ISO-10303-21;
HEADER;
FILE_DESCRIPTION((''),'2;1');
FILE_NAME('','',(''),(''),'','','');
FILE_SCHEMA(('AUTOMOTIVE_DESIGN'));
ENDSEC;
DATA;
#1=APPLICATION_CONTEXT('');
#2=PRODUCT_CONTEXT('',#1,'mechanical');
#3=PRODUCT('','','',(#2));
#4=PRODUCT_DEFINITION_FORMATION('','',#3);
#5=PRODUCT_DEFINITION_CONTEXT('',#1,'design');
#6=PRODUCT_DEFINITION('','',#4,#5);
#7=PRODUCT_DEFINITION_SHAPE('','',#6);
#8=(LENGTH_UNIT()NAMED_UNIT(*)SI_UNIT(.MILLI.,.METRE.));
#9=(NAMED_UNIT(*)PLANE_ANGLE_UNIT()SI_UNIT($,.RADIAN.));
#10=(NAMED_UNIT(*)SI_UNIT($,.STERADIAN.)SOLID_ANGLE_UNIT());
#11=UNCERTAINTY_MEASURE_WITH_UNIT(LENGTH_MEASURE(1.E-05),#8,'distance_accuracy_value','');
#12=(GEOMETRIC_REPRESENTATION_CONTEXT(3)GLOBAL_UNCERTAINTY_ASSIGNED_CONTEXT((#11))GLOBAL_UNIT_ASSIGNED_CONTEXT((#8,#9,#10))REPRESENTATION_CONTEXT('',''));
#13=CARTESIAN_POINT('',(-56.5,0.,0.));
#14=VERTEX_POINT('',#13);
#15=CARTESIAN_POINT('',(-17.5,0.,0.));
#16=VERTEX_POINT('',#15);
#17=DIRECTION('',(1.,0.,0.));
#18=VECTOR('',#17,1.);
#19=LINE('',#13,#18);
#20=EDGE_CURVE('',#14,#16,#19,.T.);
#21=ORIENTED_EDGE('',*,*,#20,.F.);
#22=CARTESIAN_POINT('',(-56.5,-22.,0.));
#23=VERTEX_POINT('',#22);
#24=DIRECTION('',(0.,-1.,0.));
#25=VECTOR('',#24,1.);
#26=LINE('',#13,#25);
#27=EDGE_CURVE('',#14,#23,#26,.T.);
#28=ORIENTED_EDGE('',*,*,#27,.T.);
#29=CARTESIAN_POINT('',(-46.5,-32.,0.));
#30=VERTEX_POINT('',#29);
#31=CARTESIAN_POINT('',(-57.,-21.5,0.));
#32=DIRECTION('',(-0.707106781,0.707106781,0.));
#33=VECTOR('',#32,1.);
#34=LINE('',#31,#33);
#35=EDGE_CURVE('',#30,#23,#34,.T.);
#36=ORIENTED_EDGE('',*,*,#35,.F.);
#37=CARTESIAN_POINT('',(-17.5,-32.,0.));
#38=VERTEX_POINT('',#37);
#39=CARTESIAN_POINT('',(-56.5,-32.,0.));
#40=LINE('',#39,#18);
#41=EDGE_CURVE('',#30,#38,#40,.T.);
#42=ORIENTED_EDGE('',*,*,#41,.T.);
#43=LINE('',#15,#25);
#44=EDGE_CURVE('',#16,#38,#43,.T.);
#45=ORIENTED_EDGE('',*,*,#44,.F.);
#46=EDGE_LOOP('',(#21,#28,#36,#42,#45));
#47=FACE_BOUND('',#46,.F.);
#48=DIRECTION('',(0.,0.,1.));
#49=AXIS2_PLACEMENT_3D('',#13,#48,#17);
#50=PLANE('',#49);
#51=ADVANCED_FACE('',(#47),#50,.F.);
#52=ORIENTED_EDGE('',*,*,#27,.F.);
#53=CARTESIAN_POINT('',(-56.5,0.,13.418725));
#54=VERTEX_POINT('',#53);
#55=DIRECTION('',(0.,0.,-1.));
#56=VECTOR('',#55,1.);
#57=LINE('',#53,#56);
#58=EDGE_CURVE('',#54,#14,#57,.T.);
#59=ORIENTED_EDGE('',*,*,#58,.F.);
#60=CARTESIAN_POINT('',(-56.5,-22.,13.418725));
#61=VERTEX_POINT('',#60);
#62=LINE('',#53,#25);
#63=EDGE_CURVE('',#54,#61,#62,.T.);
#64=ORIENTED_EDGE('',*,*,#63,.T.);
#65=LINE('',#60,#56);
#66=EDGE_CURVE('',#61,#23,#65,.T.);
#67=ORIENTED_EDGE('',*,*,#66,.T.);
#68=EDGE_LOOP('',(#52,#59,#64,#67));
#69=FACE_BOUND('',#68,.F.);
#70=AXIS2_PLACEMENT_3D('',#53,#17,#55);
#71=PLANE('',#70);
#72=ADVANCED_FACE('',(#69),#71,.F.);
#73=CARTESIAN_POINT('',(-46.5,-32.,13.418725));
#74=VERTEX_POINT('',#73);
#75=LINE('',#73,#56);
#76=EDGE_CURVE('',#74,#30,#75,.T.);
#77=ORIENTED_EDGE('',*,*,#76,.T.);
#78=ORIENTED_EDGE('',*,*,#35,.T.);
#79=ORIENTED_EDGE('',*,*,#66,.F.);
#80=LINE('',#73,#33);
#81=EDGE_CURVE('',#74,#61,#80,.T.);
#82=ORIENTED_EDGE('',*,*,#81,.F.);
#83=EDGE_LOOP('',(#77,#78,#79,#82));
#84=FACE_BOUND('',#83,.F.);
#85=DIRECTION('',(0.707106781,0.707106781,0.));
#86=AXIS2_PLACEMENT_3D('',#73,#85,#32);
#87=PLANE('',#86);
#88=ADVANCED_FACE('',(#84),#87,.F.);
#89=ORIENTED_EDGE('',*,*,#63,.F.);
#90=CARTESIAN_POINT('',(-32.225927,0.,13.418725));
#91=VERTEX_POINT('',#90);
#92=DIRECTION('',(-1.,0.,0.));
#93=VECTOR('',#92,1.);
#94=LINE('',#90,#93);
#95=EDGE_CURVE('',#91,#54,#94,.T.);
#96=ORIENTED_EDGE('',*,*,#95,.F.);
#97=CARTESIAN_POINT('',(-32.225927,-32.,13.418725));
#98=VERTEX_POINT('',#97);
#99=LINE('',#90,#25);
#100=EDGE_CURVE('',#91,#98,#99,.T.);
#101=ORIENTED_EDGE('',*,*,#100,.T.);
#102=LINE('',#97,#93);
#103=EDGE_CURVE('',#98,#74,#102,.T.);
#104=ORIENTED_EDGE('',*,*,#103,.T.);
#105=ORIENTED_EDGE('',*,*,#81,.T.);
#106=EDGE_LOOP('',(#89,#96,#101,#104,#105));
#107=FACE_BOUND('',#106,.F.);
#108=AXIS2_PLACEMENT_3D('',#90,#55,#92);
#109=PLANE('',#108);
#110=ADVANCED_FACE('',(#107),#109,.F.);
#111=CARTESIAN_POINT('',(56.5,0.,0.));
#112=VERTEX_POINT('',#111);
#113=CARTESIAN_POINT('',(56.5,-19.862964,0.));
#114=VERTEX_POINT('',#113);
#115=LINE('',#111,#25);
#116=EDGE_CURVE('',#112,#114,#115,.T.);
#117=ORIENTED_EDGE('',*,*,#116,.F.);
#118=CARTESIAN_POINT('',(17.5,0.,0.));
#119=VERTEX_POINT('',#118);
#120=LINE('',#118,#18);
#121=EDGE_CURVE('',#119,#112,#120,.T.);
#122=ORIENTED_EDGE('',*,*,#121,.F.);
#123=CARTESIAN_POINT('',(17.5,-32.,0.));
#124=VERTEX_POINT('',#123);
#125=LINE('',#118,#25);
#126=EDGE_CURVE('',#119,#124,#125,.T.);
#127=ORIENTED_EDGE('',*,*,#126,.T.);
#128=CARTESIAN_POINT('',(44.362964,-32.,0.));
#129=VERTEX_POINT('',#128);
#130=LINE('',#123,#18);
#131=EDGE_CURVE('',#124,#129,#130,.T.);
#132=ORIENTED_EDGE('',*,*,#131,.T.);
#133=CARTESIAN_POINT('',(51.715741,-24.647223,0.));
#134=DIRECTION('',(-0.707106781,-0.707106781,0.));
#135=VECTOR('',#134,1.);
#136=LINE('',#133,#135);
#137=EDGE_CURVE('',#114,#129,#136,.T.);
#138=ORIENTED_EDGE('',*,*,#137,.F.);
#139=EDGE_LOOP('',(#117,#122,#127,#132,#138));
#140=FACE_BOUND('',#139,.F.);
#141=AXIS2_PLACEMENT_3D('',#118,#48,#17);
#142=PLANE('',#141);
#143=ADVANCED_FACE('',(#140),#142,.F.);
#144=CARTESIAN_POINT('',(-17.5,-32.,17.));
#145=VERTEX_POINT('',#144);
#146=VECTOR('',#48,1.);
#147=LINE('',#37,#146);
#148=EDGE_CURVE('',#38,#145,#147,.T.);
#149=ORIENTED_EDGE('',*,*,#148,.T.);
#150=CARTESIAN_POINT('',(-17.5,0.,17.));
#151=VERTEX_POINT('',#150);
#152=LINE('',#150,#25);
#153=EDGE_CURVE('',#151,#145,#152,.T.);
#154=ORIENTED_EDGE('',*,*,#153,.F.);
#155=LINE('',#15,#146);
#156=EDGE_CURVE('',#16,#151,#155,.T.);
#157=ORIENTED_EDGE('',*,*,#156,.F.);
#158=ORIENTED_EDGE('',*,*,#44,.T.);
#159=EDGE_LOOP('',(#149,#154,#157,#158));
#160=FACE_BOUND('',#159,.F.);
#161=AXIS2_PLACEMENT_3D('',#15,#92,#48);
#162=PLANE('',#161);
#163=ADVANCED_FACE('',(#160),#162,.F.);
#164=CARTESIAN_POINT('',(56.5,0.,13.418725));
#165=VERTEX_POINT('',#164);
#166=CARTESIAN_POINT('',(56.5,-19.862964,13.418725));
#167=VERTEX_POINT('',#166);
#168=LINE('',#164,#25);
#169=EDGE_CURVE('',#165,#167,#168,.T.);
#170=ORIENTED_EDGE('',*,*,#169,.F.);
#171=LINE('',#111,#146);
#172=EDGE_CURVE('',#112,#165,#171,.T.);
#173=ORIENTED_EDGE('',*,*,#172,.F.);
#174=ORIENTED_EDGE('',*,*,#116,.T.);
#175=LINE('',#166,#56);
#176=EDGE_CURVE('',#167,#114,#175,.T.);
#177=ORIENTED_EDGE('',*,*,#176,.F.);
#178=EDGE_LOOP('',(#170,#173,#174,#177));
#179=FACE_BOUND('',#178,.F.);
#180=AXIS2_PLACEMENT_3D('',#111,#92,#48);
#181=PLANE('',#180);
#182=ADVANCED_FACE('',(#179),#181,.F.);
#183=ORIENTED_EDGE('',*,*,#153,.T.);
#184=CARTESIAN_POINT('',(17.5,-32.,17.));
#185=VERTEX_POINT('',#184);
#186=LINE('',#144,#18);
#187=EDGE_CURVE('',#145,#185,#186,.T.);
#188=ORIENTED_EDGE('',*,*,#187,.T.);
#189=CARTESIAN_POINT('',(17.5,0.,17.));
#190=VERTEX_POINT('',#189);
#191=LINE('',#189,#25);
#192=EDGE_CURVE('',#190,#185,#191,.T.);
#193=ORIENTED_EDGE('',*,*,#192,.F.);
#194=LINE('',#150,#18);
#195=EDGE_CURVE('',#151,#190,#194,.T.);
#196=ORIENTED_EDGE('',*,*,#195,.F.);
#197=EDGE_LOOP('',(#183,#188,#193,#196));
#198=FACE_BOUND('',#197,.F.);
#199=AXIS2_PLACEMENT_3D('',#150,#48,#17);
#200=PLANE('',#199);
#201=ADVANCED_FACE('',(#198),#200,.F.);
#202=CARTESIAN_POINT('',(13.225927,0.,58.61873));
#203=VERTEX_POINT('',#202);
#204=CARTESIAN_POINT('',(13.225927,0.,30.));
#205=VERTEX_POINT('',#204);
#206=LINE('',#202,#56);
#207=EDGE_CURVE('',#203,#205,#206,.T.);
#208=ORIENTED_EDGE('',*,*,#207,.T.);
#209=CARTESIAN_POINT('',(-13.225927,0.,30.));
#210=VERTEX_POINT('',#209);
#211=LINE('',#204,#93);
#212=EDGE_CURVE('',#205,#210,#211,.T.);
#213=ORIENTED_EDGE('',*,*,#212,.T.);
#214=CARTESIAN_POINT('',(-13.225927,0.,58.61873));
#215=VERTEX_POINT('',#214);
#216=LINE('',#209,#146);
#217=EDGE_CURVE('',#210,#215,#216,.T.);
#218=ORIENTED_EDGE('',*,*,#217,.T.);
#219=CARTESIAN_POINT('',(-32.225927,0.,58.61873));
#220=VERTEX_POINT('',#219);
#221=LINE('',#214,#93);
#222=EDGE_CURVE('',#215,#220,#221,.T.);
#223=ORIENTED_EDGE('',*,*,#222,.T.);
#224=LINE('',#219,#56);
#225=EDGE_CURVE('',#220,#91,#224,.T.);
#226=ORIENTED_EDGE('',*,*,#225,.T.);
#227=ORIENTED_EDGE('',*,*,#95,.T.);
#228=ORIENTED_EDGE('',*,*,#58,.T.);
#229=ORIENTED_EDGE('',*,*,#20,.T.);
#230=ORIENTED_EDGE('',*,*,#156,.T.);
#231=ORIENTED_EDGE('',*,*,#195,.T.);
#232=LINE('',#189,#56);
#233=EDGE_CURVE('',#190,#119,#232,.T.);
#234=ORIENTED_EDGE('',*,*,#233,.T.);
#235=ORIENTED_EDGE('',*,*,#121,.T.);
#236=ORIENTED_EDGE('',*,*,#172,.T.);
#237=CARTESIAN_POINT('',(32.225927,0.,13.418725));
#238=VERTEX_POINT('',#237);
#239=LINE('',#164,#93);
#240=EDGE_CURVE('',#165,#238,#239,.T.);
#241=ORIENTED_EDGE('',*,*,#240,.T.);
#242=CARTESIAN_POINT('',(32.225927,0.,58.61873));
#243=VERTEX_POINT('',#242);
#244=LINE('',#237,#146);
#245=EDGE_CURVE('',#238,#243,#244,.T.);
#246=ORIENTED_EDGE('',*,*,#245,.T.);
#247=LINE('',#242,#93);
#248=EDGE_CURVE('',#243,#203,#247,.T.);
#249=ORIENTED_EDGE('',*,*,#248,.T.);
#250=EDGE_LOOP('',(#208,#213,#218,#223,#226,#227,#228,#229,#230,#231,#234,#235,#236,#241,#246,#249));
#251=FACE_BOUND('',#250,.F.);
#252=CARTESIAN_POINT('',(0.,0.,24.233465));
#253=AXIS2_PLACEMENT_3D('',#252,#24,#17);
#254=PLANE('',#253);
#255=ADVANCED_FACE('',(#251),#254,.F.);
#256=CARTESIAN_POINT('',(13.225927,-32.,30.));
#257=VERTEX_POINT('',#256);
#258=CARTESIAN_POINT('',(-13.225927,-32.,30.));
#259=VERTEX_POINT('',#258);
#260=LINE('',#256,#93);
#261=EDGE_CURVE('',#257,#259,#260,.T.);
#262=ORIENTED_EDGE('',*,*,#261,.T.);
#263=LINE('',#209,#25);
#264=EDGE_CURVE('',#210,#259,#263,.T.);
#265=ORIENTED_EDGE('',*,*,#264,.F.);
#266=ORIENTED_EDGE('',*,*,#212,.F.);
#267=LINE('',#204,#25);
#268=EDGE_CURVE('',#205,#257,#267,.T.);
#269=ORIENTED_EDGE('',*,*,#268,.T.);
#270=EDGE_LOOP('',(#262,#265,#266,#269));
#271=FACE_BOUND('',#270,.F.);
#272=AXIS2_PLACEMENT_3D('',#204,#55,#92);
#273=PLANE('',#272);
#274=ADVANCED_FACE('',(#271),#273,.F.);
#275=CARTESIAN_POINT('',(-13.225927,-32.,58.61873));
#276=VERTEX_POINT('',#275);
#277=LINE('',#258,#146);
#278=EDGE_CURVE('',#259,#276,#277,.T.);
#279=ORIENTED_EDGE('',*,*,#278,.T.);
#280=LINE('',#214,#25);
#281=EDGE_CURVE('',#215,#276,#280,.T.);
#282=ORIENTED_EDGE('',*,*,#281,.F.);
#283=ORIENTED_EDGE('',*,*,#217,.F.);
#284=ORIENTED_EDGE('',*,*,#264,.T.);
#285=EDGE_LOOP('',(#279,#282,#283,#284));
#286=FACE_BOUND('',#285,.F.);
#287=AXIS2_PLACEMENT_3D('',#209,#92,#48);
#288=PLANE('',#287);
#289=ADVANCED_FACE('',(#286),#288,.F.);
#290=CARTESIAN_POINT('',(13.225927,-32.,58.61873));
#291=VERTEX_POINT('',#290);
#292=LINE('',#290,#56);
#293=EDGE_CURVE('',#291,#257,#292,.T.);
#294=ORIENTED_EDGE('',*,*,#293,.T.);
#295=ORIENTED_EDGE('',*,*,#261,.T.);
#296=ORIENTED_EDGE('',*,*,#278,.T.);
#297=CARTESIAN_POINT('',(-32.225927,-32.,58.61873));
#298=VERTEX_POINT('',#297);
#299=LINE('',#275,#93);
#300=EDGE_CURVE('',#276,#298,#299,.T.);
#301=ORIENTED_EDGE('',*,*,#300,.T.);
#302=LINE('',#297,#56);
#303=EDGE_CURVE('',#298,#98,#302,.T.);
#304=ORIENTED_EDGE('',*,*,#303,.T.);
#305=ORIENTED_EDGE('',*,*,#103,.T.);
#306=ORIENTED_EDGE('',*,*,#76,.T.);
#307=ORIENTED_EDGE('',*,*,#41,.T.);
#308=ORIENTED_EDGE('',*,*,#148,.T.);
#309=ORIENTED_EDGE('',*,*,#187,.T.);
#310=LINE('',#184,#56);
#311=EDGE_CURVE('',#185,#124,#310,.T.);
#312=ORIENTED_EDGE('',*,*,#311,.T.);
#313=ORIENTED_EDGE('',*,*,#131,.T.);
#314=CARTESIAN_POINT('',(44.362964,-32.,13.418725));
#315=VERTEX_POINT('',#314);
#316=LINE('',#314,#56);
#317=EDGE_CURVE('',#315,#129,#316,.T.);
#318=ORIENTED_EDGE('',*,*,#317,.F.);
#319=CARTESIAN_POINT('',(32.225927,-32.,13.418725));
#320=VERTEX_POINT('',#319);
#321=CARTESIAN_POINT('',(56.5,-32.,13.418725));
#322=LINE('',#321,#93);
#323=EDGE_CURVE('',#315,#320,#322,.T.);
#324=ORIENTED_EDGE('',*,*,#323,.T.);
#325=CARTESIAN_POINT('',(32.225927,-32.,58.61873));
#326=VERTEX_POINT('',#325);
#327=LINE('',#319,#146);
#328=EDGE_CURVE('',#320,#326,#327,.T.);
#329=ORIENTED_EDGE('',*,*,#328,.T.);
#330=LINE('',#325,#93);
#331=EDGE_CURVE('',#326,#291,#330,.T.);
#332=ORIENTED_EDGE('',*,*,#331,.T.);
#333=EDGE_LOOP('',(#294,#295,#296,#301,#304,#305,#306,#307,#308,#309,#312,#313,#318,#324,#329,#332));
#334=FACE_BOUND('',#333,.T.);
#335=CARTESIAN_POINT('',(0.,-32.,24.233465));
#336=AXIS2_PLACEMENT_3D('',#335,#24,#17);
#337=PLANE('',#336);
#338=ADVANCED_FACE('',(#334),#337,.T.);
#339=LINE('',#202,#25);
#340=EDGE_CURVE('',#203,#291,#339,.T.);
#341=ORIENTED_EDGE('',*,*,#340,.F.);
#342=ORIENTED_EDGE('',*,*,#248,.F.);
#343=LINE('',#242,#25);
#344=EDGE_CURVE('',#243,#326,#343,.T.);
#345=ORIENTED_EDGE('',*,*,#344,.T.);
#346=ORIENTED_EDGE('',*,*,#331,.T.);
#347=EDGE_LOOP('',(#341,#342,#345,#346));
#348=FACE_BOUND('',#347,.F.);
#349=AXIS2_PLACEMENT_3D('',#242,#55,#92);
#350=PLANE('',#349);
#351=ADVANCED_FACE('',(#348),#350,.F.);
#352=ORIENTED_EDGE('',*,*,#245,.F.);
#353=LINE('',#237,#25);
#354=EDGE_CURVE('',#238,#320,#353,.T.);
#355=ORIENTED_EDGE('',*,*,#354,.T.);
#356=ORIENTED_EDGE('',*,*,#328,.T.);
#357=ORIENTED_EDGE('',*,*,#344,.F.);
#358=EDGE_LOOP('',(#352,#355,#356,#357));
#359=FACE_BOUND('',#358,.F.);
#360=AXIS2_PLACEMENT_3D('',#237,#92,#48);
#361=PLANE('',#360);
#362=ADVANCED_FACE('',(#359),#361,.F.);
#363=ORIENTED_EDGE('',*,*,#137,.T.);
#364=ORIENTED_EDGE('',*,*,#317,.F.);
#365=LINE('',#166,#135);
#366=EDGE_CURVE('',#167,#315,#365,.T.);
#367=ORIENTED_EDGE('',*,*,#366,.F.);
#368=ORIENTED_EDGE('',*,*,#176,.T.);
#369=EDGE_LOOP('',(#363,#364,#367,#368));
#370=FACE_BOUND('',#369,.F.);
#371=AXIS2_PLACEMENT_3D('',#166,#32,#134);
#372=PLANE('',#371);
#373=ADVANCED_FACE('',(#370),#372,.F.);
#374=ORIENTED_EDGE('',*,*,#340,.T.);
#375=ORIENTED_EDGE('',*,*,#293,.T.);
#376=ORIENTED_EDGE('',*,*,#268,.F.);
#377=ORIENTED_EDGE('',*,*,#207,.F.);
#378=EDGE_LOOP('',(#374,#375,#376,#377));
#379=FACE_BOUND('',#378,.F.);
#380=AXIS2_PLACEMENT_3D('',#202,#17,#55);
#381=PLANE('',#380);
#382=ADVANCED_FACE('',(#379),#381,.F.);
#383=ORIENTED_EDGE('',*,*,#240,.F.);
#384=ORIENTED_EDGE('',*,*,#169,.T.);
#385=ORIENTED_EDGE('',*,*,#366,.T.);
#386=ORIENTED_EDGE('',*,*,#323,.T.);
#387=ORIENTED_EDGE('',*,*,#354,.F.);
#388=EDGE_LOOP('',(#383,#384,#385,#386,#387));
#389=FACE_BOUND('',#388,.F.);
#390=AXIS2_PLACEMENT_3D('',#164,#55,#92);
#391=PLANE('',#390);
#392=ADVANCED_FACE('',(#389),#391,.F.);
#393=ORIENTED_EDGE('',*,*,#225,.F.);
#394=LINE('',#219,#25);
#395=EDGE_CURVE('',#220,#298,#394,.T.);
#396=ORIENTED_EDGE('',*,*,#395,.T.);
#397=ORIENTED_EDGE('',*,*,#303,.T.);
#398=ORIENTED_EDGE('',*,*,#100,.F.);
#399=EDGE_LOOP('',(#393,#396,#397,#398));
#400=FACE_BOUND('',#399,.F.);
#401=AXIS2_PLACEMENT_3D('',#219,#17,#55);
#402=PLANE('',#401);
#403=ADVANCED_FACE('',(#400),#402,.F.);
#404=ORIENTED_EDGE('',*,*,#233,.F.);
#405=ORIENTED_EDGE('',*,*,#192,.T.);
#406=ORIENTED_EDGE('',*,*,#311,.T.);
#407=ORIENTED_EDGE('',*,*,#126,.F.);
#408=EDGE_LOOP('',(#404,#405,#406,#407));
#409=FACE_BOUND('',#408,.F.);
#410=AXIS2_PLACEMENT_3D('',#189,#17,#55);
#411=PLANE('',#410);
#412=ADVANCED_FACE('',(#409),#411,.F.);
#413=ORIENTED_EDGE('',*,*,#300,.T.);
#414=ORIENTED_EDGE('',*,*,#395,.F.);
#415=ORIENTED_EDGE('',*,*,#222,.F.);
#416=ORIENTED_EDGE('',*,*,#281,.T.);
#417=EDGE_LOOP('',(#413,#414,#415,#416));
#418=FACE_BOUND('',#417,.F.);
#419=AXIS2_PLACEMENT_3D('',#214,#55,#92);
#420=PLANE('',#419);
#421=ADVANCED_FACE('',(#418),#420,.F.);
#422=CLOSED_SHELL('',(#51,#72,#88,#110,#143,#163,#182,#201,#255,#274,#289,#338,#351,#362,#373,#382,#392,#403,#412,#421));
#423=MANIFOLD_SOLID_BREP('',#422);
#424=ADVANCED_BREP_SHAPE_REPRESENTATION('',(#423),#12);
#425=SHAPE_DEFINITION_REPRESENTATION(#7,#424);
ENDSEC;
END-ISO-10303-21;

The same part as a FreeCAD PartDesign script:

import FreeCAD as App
import Part
import Sketcher
from FreeCAD import Vector
Q = App.Units.Quantity


def add_polygon(sketch, points):
    """Adds a closed chain of lines whose ends are joined by coincident constraints."""
    first, n = sketch.GeometryCount, len(points)
    for a, b in zip(points, points[1:] + points[:1]):
        sketch.addGeometry(Part.LineSegment(App.Vector(*a, 0), App.Vector(*b, 0)), False)
    for i in range(n):
        sketch.addConstraint(Sketcher.Constraint("Coincident", first + i, 2, first + (i + 1) % n, 1))

doc = App.newDocument("Part")
body = doc.addObject("PartDesign::Body", "Body")

sketch1 = body.newObject("Sketcher::SketchObject", "Sketch")
sketch1.AttachmentSupport = (doc.getObject("XZ_Plane"), [""])
sketch1.MapMode = "FlatFace"
add_polygon(sketch1, [(-56, 13), (-56, 0), (-18, 0), (-18, 17), (18, 17), (18, 0), (56, 0), (56, 13), (32, 13), (32, 59), (13, 59), (13, 30), (-13, 30), (-13, 59), (-32, 59), (-32, 13)])
sketch1.addConstraint([
    Sketcher.Constraint("Vertical", 0),
    Sketcher.Constraint("Horizontal", 1),
    Sketcher.Constraint("Vertical", 2),
    Sketcher.Constraint("Horizontal", 3),
    Sketcher.Constraint("Vertical", 4),
    Sketcher.Constraint("Horizontal", 5),
    Sketcher.Constraint("Vertical", 6),
    Sketcher.Constraint("Horizontal", 7),
    Sketcher.Constraint("Vertical", 8),
    Sketcher.Constraint("Horizontal", 9),
    Sketcher.Constraint("Vertical", 10),
    Sketcher.Constraint("Horizontal", 11),
    Sketcher.Constraint("Vertical", 12),
    Sketcher.Constraint("Horizontal", 13),
    Sketcher.Constraint("Vertical", 14),
    Sketcher.Constraint("Horizontal", 15),
    Sketcher.Constraint("Symmetric", 1, 2, 4, 2, -1, 1),
    Sketcher.Constraint("Symmetric", 0, 2, 5, 2, -2),
    Sketcher.Constraint("Symmetric", 9, 2, 12, 2, -2),
    Sketcher.Constraint("Symmetric", 7, 2, 14, 2, -2),
    Sketcher.Constraint("DistanceX", 1, 1, 1, 2, Q("39 mm")),
    Sketcher.Constraint("DistanceX", 3, 1, 3, 2, Q("35 mm")),
    Sketcher.Constraint("DistanceX", 9, 2, 9, 1, Q("19 mm")),
    Sketcher.Constraint("DistanceY", 2, 1, 2, 2, Q("17 mm")),
    Sketcher.Constraint("DistanceY", -1, 1, 10, 2, Q("30 mm")),
    Sketcher.Constraint("DistanceY", 10, 2, 10, 1, Q("28.61873 mm")),
    Sketcher.Constraint("DistanceX", 7, 2, 7, 1, Q("24.274073 mm")),
    Sketcher.Constraint("DistanceY", 0, 2, 0, 1, Q("13.418725 mm")),
])
pad1 = body.newObject("PartDesign::Pad", "Pad")
pad1.Profile = sketch1
pad1.Length = 32

sketch2 = body.newObject("Sketcher::SketchObject", "Sketch001")
sketch2.AttachmentSupport = (doc.getObject("XY_Plane"), [""])
sketch2.MapMode = "FlatFace"
sketch2.AttachmentOffset = App.Placement(Vector(0, 0, 13.418725), App.Rotation())
add_polygon(sketch2, [(-56, -32), (-46, -32), (-56, -22)])
sketch2.addConstraint([
    Sketcher.Constraint("Horizontal", 0),
    Sketcher.Constraint("Vertical", 2),
    Sketcher.Constraint("Equal", 0, 2),
    Sketcher.Constraint("DistanceX", 0, 1, 0, 2, Q("10 mm")),
    Sketcher.Constraint("DistanceY", 0, 2, -1, 1, Q("32 mm")),
    Sketcher.Constraint("DistanceX", 0, 2, -1, 1, Q("46.5 mm")),
])
pocket1 = body.newObject("PartDesign::Pocket", "Pocket")
pocket1.Profile = sketch2
pocket1.Type = "ThroughAll"

sketch3 = body.newObject("Sketcher::SketchObject", "Sketch002")
sketch3.AttachmentSupport = (doc.getObject("XY_Plane"), [""])
sketch3.MapMode = "FlatFace"
sketch3.AttachmentOffset = App.Placement(Vector(0, 0, 13.418725), App.Rotation())
add_polygon(sketch3, [(56, -20), (44, -32), (56, -32)])
sketch3.addConstraint([
    Sketcher.Constraint("Horizontal", 1),
    Sketcher.Constraint("Vertical", 2),
    Sketcher.Constraint("Equal", 1, 2),
    Sketcher.Constraint("DistanceY", 0, 2, -1, 1, Q("32 mm")),
    Sketcher.Constraint("DistanceX", -1, 1, 1, 2, Q("56.5 mm")),
    Sketcher.Constraint("Distance", 0, Q("17.164361 mm")),
])
pocket2 = body.newObject("PartDesign::Pocket", "Pocket001")
pocket2.Profile = sketch3
pocket2.Type = "ThroughAll"

doc.recompute()
